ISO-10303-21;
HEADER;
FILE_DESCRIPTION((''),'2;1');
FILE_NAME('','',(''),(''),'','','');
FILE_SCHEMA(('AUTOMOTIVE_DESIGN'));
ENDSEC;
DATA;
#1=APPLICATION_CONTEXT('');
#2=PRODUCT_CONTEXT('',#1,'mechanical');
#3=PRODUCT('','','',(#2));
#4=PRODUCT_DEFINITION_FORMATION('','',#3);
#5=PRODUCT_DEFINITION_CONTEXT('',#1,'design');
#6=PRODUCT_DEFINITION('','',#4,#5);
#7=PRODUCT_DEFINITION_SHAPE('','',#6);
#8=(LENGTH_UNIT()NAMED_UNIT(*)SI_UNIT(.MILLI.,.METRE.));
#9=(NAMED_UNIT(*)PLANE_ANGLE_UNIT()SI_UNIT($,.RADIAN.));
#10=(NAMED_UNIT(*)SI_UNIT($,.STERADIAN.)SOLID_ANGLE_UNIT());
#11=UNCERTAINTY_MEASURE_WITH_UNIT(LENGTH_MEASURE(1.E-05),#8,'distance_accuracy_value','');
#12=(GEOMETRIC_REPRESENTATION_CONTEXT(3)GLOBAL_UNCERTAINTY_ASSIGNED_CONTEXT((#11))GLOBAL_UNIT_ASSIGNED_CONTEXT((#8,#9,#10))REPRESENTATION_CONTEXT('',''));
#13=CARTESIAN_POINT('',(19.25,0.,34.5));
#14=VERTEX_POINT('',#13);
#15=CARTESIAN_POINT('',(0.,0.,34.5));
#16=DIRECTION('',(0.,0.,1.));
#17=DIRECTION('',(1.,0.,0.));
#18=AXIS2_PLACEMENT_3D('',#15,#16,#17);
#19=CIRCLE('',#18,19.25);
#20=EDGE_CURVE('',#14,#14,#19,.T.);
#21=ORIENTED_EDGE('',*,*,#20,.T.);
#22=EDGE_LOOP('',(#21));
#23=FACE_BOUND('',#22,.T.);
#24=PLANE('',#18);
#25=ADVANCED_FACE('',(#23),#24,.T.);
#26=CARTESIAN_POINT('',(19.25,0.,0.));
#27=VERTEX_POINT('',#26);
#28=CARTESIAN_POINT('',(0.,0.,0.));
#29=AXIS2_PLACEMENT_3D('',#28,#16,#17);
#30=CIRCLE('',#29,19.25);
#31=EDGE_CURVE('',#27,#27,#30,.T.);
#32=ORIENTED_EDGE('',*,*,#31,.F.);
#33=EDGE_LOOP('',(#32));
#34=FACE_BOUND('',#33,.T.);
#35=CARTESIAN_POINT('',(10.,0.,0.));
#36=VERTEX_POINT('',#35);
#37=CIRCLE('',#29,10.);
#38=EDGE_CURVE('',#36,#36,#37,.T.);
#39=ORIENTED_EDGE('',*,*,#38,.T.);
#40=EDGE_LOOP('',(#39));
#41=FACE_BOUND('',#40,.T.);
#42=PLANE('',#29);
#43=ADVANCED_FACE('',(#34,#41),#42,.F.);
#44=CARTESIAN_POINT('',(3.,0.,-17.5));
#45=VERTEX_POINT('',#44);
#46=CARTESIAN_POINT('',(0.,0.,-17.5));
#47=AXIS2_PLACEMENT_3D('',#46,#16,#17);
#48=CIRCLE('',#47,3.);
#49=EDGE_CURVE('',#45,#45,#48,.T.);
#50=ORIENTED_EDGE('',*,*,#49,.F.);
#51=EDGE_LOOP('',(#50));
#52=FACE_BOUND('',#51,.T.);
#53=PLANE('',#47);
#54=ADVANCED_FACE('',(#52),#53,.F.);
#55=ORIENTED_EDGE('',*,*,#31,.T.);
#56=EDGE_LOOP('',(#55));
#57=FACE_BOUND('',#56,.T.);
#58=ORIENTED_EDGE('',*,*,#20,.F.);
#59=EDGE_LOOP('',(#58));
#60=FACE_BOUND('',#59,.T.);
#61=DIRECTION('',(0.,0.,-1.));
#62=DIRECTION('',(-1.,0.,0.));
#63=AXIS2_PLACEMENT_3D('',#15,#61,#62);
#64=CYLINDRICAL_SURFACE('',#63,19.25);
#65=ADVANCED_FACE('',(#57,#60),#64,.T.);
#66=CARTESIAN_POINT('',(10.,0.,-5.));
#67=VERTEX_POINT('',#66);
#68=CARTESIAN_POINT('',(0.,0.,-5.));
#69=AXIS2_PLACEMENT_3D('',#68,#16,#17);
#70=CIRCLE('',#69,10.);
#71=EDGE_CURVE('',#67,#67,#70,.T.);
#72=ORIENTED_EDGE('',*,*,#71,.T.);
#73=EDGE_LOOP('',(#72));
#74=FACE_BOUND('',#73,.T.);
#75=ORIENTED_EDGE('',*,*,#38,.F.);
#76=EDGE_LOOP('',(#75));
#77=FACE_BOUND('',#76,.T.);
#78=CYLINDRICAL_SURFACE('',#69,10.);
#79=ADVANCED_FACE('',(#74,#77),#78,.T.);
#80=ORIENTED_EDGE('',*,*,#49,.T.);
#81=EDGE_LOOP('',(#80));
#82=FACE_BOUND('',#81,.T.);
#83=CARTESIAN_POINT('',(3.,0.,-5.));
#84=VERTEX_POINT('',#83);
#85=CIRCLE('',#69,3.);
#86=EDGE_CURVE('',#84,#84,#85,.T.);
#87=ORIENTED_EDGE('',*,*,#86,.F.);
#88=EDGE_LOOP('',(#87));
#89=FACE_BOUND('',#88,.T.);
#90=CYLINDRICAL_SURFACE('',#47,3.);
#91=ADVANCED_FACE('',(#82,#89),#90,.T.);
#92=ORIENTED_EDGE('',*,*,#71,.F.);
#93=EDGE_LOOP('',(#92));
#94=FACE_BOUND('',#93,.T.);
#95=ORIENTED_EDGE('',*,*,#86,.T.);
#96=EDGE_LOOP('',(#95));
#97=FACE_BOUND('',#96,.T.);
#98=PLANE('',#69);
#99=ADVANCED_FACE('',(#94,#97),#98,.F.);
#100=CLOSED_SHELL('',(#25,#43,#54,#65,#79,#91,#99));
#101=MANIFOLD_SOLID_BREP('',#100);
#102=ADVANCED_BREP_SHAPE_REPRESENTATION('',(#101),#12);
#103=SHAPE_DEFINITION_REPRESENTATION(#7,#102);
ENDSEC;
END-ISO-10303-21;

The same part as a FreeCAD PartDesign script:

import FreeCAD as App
import Part
import Sketcher

V = App.Vector

doc = App.newDocument("Part")
params = doc.addObject("Spreadsheet::Sheet", "Params")
for row, (alias, value) in enumerate([
    ("sketch1_diameter", "38.5 mm"),
    ("pad1_length", "34.5 mm"),
    ("sketch2_diameter", "20 mm"),
    ("sketch2_diameter2", "6 mm"),
    ("pad2_length", "5 mm"),
    ("sketch3_diameter", "6 mm"),
    ("pad3_length", "17.5 mm"),
], start=1):
    params.set(f"A{row}", alias)
    params.set(f"B{row}", "=" + value)
    params.setAlias(f"B{row}", alias)

body = doc.addObject("PartDesign::Body", "Body")

# Sketch on XY plane
sketch1 = body.newObject("Sketcher::SketchObject", "Sketch")
sketch1.AttachmentSupport = (doc.getObject("XY_Plane"), [""])
sketch1.MapMode = "FlatFace"
sketch1.addGeometry(Part.Circle(V(0, 0, 0), V(0, 0, 1), 19.25), False)
sketch1.addConstraint([
    Sketcher.Constraint("Coincident", 0, 3, -1, 1),
    Sketcher.Constraint("Diameter", 0, 38.5),
])
sketch1.setExpression("Constraints[1]", "Params.sketch1_diameter")
pad1 = body.newObject("PartDesign::Pad", "Pad")
pad1.Profile = sketch1
pad1.setExpression("Length", "Params.pad1_length")

# Sketch on XY plane
sketch2 = body.newObject("Sketcher::SketchObject", "Sketch001")
sketch2.AttachmentSupport = (doc.getObject("XY_Plane"), [""])
sketch2.MapMode = "FlatFace"
sketch2.addGeometry([
    Part.Circle(V(0, 0, 0), V(0, 0, 1), 10),
    Part.Circle(V(0, 0, 0), V(0, 0, 1), 3),
], False)
sketch2.addConstraint([
    Sketcher.Constraint("Coincident", 0, 3, -1, 1),
    Sketcher.Constraint("Coincident", 1, 3, -1, 1),
    Sketcher.Constraint("Diameter", 0, 20.0),
    Sketcher.Constraint("Diameter", 1, 6.0),
])
sketch2.setExpression("Constraints[2]", "Params.sketch2_diameter")
sketch2.setExpression("Constraints[3]", "Params.sketch2_diameter2")
pad2 = body.newObject("PartDesign::Pad", "Pad001")
pad2.Profile = sketch2
pad2.setExpression("Length", "Params.pad2_length")
pad2.Reversed = True

# Sketch on XY plane
sketch3 = body.newObject("Sketcher::SketchObject", "Sketch002")
sketch3.AttachmentSupport = (doc.getObject("XY_Plane"), [""])
sketch3.MapMode = "FlatFace"
sketch3.addGeometry(Part.Circle(V(0, 0, 0), V(0, 0, 1), 3), False)
sketch3.addConstraint([
    Sketcher.Constraint("Coincident", 0, 3, -1, 1),
    Sketcher.Constraint("Diameter", 0, 6.0),
])
sketch3.setExpression("Constraints[1]", "Params.sketch3_diameter")
pad3 = body.newObject("PartDesign::Pad", "Pad002")
pad3.Profile = sketch3
pad3.setExpression("Length", "Params.pad3_length")
pad3.Reversed = True

doc.recompute()
